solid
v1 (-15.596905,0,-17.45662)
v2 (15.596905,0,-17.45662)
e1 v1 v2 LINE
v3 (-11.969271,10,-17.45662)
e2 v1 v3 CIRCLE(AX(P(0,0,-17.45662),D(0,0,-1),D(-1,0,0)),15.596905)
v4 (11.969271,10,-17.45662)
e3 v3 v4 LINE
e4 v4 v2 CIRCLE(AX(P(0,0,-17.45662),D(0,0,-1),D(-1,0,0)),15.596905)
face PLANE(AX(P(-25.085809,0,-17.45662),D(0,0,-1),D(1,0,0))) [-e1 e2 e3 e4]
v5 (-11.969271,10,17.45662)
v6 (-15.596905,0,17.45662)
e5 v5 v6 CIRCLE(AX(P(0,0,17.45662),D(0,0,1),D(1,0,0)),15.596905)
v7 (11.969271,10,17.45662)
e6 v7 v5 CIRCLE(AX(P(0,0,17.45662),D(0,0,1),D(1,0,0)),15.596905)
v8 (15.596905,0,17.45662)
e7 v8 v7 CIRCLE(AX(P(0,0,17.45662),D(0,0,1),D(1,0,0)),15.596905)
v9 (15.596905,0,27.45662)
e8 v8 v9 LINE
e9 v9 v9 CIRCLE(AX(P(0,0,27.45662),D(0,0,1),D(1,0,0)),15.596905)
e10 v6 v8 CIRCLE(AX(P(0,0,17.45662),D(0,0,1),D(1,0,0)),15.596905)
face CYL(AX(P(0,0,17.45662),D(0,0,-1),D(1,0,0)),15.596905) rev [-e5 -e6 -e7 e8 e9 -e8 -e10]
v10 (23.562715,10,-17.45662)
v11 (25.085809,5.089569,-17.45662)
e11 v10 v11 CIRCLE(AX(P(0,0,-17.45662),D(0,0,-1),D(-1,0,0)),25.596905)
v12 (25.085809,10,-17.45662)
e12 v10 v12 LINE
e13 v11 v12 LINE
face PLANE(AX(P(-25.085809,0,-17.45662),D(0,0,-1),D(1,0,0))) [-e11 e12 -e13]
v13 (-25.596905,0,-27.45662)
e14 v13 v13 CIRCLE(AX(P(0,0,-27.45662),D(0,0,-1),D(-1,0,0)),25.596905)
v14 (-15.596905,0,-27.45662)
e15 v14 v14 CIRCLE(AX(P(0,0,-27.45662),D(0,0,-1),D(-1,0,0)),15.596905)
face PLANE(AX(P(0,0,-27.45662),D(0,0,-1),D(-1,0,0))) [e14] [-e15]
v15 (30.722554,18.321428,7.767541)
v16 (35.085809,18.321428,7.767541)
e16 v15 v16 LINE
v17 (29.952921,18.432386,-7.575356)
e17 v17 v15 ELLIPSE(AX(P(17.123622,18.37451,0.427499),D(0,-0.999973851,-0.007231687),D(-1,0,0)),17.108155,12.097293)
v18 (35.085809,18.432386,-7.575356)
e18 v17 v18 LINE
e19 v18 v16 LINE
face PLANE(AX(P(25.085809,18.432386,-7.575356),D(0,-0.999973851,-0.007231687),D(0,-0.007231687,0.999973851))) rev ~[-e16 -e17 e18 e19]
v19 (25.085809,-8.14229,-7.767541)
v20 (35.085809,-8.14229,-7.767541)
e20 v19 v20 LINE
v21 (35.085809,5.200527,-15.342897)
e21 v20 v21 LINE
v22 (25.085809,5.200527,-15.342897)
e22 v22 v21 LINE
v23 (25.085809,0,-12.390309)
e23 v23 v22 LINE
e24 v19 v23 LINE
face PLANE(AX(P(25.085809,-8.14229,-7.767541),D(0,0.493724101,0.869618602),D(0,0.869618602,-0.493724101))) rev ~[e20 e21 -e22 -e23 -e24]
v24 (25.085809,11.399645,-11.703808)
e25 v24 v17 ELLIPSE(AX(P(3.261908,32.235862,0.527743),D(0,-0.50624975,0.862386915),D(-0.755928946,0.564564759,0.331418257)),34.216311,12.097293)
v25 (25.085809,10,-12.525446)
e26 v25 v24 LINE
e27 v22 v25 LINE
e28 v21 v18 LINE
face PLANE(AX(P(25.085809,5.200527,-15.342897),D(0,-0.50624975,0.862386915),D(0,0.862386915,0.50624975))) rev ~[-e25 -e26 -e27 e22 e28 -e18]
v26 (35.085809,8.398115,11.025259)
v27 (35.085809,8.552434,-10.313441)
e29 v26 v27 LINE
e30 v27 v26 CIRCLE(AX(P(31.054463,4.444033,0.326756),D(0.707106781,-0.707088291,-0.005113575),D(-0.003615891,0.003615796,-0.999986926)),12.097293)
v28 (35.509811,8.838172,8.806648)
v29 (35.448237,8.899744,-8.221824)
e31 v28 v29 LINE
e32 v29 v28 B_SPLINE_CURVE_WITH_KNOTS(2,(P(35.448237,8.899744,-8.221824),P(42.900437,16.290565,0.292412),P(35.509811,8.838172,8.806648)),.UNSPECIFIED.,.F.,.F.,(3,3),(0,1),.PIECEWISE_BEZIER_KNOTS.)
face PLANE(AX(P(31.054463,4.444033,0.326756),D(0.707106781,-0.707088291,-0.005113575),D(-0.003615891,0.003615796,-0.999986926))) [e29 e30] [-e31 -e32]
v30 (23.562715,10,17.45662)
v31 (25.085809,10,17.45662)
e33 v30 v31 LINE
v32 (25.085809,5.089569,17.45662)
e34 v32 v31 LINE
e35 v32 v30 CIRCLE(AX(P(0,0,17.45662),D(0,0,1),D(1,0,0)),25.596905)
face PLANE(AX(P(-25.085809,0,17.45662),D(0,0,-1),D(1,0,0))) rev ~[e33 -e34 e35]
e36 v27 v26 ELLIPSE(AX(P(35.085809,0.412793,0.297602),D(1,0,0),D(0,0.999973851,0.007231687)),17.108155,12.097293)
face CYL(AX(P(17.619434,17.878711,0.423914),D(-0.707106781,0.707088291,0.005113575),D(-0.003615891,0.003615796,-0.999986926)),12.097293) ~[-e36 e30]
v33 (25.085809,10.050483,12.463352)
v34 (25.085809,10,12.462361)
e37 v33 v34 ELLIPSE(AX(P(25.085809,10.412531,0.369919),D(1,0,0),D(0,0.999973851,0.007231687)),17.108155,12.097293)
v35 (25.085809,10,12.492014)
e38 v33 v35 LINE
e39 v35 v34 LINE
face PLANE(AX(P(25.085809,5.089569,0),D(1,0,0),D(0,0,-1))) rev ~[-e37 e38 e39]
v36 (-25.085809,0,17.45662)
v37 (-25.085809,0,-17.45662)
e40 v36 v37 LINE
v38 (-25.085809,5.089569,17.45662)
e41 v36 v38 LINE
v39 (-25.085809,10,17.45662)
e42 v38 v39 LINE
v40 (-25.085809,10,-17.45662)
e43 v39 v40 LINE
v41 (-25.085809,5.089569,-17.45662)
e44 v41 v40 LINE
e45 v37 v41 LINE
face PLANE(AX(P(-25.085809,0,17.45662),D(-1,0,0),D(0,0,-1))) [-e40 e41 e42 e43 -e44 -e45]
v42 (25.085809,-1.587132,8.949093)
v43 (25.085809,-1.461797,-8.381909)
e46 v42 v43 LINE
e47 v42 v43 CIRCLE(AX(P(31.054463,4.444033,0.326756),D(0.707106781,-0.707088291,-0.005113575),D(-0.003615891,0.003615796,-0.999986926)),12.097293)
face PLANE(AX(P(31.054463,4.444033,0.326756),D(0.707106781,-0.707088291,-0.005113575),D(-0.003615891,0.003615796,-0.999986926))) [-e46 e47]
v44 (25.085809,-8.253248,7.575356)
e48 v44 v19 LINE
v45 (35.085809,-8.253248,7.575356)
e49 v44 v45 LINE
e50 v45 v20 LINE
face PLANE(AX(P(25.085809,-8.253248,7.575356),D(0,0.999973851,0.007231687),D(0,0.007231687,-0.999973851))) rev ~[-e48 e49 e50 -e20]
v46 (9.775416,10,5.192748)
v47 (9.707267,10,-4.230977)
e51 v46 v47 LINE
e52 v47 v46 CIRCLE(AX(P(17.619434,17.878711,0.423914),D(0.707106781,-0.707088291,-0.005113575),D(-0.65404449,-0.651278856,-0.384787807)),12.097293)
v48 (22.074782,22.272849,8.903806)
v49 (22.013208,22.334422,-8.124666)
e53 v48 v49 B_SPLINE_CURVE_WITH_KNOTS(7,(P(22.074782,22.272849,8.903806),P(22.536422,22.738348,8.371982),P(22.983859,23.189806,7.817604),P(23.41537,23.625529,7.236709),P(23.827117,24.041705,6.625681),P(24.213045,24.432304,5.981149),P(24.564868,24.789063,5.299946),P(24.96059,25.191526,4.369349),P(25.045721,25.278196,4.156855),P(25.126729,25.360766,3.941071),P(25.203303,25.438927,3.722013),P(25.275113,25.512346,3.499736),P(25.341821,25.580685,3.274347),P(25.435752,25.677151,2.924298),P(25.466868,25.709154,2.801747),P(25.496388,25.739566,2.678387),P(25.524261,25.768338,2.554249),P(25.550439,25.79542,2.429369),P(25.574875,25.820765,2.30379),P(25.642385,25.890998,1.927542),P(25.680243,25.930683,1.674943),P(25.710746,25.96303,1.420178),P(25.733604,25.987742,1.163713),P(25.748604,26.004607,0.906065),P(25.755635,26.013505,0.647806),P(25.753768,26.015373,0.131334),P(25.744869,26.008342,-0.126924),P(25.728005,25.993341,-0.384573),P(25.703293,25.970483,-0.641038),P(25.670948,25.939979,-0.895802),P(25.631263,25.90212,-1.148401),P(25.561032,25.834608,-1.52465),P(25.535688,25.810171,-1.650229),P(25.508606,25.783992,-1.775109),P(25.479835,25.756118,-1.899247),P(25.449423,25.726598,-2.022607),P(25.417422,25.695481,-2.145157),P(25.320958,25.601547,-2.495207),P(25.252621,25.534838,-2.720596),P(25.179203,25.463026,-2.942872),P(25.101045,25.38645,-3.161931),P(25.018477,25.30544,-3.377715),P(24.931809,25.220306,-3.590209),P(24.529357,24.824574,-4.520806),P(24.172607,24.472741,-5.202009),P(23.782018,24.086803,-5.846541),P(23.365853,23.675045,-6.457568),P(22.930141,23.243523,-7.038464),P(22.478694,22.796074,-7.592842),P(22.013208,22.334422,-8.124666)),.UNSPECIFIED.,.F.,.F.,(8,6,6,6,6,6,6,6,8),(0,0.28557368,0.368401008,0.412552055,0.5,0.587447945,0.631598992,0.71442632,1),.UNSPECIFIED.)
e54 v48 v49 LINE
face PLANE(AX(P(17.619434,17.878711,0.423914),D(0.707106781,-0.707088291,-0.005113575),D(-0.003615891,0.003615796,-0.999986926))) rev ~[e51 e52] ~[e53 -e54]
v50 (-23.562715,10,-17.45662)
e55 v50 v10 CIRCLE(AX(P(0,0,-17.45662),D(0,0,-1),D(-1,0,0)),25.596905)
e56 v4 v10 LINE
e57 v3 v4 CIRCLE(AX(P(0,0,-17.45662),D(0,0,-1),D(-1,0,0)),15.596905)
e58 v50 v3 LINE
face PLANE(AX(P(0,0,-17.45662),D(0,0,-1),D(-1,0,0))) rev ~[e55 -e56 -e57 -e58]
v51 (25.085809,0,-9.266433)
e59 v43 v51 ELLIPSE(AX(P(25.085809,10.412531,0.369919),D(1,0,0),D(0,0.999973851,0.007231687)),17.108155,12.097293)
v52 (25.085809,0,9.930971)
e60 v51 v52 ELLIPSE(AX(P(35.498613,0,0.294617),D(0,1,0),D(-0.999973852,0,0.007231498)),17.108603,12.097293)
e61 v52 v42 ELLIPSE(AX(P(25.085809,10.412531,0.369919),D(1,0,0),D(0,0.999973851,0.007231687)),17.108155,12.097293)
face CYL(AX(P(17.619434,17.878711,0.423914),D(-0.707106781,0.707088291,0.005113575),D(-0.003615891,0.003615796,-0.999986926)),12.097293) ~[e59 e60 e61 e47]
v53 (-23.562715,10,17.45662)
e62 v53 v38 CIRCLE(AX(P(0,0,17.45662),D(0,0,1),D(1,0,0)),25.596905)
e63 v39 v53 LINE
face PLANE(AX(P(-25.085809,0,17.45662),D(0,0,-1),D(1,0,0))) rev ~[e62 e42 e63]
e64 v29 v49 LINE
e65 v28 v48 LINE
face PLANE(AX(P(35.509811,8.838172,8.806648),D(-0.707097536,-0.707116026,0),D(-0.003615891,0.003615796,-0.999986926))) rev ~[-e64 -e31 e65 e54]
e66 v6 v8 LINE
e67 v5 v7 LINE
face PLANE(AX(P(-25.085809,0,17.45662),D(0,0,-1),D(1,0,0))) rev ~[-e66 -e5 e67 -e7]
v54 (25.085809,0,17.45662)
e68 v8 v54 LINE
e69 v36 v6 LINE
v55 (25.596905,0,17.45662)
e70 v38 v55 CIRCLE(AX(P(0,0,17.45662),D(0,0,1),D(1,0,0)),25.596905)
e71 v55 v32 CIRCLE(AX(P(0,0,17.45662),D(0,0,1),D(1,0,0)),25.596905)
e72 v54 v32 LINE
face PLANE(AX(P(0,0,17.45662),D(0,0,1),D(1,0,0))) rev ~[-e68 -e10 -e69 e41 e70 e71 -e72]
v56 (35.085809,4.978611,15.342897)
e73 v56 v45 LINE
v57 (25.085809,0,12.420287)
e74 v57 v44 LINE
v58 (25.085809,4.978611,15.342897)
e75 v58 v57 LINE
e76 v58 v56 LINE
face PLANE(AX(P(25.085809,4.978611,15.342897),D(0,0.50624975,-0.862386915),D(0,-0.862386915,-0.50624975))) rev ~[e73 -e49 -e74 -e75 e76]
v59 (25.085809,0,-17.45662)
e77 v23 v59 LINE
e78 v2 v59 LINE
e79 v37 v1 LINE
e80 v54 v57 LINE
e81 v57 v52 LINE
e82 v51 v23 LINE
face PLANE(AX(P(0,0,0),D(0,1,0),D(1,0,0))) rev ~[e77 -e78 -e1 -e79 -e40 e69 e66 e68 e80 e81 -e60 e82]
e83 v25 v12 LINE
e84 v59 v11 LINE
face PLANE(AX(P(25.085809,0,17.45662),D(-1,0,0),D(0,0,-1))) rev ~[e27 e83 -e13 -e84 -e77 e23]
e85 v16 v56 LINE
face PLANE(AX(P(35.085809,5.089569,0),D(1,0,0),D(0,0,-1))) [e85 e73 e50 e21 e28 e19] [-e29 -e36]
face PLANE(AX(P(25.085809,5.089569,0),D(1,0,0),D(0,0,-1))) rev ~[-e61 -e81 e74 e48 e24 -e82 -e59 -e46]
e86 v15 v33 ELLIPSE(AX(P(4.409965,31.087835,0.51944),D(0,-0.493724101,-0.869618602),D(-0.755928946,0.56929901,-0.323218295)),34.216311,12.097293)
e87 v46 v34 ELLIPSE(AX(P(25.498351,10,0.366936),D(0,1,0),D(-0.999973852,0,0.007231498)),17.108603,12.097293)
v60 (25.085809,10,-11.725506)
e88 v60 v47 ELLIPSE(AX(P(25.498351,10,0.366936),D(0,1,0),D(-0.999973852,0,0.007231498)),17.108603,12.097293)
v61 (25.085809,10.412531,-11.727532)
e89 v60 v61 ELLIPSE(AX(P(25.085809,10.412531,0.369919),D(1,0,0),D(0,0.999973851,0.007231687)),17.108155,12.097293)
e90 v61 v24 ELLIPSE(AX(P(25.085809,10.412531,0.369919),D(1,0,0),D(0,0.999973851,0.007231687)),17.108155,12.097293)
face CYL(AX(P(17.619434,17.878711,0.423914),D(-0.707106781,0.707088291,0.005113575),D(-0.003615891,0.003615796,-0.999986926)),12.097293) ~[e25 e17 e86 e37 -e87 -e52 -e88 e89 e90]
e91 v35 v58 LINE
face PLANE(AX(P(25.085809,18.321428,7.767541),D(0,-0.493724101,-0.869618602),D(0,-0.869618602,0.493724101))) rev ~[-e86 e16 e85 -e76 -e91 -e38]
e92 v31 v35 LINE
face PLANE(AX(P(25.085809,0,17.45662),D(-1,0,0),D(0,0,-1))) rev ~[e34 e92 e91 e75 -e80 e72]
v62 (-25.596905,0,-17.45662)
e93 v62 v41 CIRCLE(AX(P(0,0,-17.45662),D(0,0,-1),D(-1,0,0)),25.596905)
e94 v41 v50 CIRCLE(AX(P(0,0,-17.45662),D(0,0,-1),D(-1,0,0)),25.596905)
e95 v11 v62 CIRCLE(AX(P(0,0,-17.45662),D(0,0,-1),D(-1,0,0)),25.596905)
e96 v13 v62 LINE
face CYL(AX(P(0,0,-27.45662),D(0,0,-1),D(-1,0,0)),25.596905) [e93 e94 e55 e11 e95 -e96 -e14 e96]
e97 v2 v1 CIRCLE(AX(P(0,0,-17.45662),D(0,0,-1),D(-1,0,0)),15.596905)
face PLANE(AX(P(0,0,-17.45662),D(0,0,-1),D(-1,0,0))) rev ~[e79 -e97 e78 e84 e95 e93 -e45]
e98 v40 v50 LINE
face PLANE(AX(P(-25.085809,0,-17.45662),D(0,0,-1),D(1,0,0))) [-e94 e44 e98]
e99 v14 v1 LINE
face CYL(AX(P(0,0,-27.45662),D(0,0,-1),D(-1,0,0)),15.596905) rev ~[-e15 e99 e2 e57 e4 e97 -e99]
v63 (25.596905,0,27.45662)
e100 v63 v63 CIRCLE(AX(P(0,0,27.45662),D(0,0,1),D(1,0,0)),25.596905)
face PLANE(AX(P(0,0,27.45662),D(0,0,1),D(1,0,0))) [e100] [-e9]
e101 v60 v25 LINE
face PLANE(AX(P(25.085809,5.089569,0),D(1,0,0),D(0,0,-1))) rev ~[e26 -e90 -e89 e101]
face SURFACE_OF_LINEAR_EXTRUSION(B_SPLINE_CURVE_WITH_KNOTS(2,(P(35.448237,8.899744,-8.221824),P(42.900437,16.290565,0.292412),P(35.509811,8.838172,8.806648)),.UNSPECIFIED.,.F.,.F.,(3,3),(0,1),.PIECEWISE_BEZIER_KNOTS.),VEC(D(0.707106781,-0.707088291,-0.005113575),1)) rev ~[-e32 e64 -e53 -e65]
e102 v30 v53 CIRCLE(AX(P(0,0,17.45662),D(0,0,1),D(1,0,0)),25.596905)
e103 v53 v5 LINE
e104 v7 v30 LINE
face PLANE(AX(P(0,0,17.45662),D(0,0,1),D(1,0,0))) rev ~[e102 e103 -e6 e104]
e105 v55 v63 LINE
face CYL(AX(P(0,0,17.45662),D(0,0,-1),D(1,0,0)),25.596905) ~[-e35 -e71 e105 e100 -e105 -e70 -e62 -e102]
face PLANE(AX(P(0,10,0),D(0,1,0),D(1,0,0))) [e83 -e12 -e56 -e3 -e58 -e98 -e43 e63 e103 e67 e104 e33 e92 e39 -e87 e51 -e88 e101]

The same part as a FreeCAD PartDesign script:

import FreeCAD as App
import Part
import Sketcher


def add_polygon(sketch, points):
    """Adds a closed chain of lines whose ends are joined by coincident constraints."""
    first, n = sketch.GeometryCount, len(points)
    for a, b in zip(points, points[1:] + points[:1]):
        sketch.addGeometry(Part.LineSegment(App.Vector(*a, 0), App.Vector(*b, 0)), False)
    for i in range(n):
        sketch.addConstraint(Sketcher.Constraint("Coincident", first + i, 2, first + (i + 1) % n, 1))

doc = App.newDocument("Part")
body = doc.addObject("PartDesign::Body", "Body")

sketch1 = doc.addObject("Sketcher::SketchObject", "Sketch")
body.addObject(sketch1)
sketch1.AttachmentSupport = (doc.XZ_Plane, [""])
sketch1.MapMode = "FlatFace"
add_polygon(sketch1, [(-25, -17), (-25, 17), (25, 17), (25, -17)])
sketch1.addConstraint([
    Sketcher.Constraint("Vertical", 0),
    Sketcher.Constraint("Horizontal", 1),
    Sketcher.Constraint("Vertical", 2),
    Sketcher.Constraint("Horizontal", 3),
    Sketcher.Constraint("Symmetric", 0, 2, 2, 2, -1, 1),
    Sketcher.Constraint("DistanceX", 1, 1, 1, 2, 50.171619),
    Sketcher.Constraint("DistanceY", 0, 1, 0, 2, 34.91324),
])
pad1 = doc.addObject("PartDesign::Pad", "Pad")
body.addObject(pad1)
pad1.Profile = sketch1
pad1.Length = 10
pad1.Reversed = True

sketch2 = doc.addObject("Sketcher::SketchObject", "Sketch001")
body.addObject(sketch2)
sketch2.AttachmentSupport = (doc.XY_Plane, [""])
sketch2.MapMode = "FlatFace"
sketch2.AttachmentOffset = App.Placement(App.Vector(0, 0, 17.45662), App.Rotation())
sketch2.addGeometry([
    Part.Circle(App.Vector(0, 0, 0), App.Vector(0, 0, 1), 26),
    Part.Circle(App.Vector(0, 0, 0), App.Vector(0, 0, 1), 16),
], False)
sketch2.addConstraint([
    Sketcher.Constraint("Coincident", 0, 3, -1, 1),
    Sketcher.Constraint("Coincident", 1, 3, -1, 1),
    Sketcher.Constraint("Diameter", 0, 51.19381),
    Sketcher.Constraint("Diameter", 1, 31.19381),
])
pad2 = doc.addObject("PartDesign::Pad", "Pad001")
body.addObject(pad2)
pad2.Profile = sketch2
pad2.Length = 10

sketch3 = doc.addObject("Sketcher::SketchObject", "Sketch002")
body.addObject(sketch3)
sketch3.AttachmentSupport = (doc.XY_Plane, [""])
sketch3.MapMode = "FlatFace"
sketch3.AttachmentOffset = App.Placement(App.Vector(0, 0, -27.45662), App.Rotation())
sketch3.addGeometry([
    Part.Circle(App.Vector(0, 0, 0), App.Vector(0, 0, 1), 26),
    Part.Circle(App.Vector(0, 0, 0), App.Vector(0, 0, 1), 16),
], False)
sketch3.addConstraint([
    Sketcher.Constraint("Coincident", 0, 3, -1, 1),
    Sketcher.Constraint("Coincident", 1, 3, -1, 1),
    Sketcher.Constraint("Diameter", 0, 51.19381),
    Sketcher.Constraint("Diameter", 1, 31.19381),
])
pad3 = doc.addObject("PartDesign::Pad", "Pad002")
body.addObject(pad3)
pad3.Profile = sketch3
pad3.Length = 10

sketch4 = doc.addObject("Sketcher::SketchObject", "Sketch003")
body.addObject(sketch4)
sketch4.AttachmentSupport = (doc.YZ_Plane, [""])
sketch4.MapMode = "FlatFace"
sketch4.AttachmentOffset = App.Placement(App.Vector(0, 0, 25.085809), App.Rotation())
add_polygon(sketch4, [(-8, -8), (5, -15), (18, -8), (18, 8), (5, 15), (-8, 8)])
sketch4.addConstraint([
    Sketcher.Constraint("Parallel", 0, 3),
    Sketcher.Constraint("Parallel", 1, 4),
    Sketcher.Constraint("Parallel", 2, 5),
    Sketcher.Constraint("Equal", 0, 1),
    Sketcher.Constraint("Equal", 1, 2),
    Sketcher.Constraint("Equal", 2, 3),
    Sketcher.Constraint("DistanceX", 0, 2, 2, 2, 13.120901),
    Sketcher.Constraint("DistanceY", -1, 1, 2, 2, 7.767541),
    Sketcher.Constraint("DistanceX", -1, 1, 3, 2, 4.978611),
    Sketcher.Constraint("DistanceX", 4, 2, -1, 1, 8.253248),
    Sketcher.Constraint("DistanceY", 5, 2, -1, 1, 7.767541),
    Sketcher.Constraint("DistanceY", 0, 2, 1, 2, 7.767541),
])
pad4 = doc.addObject("PartDesign::Pad", "Pad003")
body.addObject(pad4)
pad4.Profile = sketch4
pad4.Length = 10

sketch5 = doc.addObject("Sketcher::SketchObject", "Sketch004")
body.addObject(sketch5)
sketch5.Placement = App.Placement(App.Vector(8.354344, -8.354126, -0.060416), App.Rotation(App.Vector(-0.003615891, 0.003615796, -0.999986926), App.Vector(0.707097536, 0.707116026, 0), App.Vector(0.707106781, -0.707088291, -0.005113575), "ZXY"))
sketch5.addGeometry(Part.Circle(App.Vector(0, 25, 0), App.Vector(0, 0, 1), 12), False)
sketch5.addConstraint([
    Sketcher.Constraint("Diameter", 0, 24.194586),
    Sketcher.Constraint("DistanceY", -1, 1, 0, 3, 25.100982),
    Sketcher.Constraint("DistanceX", 0, 3, -1, 1, 0.422972),
])
pad5 = doc.addObject("PartDesign::Pad", "Pad004")
body.addObject(pad5)
pad5.Profile = sketch5
pad5.Type = "TwoLengths"
pad5.Length = 7
pad5.Length2 = 12

sketch6 = doc.addObject("Sketcher::SketchObject", "Sketch005")
body.addObject(sketch6)
sketch6.Placement = App.Placement(App.Vector(13.304092, -13.303744, -0.096211), App.Rotation(App.Vector(-0.003615891, 0.003615796, -0.999986926), App.Vector(0.707097536, 0.707116026, 0), App.Vector(0.707106781, -0.707088291, -0.005113575), "ZXY"))
sketch6.addGeometry([
    Part.LineSegment(App.Vector(-8.902976, 31.358513, 0), App.Vector(8.125719, 31.358513, 0)),
    Part.BSplineCurve([App.Vector(8.125719, 31.358513, 0), App.Vector(-0.388628, 41.854113, 0), App.Vector(-8.902976, 31.358513, 0)], [3, 3], [0, 1], False, 2, [1, 1, 1], False),
], False)
sketch6.addConstraint([
    Sketcher.Constraint("Block", 1),
    Sketcher.Constraint("Coincident", 0, 1, 1, 2),
    Sketcher.Constraint("Coincident", 1, 1, 0, 2),
])
pocket1 = doc.addObject("PartDesign::Pocket", "Pocket")
body.addObject(pocket1)
pocket1.Profile = sketch6
pocket1.Type = "ThroughAll"

doc.recompute()
